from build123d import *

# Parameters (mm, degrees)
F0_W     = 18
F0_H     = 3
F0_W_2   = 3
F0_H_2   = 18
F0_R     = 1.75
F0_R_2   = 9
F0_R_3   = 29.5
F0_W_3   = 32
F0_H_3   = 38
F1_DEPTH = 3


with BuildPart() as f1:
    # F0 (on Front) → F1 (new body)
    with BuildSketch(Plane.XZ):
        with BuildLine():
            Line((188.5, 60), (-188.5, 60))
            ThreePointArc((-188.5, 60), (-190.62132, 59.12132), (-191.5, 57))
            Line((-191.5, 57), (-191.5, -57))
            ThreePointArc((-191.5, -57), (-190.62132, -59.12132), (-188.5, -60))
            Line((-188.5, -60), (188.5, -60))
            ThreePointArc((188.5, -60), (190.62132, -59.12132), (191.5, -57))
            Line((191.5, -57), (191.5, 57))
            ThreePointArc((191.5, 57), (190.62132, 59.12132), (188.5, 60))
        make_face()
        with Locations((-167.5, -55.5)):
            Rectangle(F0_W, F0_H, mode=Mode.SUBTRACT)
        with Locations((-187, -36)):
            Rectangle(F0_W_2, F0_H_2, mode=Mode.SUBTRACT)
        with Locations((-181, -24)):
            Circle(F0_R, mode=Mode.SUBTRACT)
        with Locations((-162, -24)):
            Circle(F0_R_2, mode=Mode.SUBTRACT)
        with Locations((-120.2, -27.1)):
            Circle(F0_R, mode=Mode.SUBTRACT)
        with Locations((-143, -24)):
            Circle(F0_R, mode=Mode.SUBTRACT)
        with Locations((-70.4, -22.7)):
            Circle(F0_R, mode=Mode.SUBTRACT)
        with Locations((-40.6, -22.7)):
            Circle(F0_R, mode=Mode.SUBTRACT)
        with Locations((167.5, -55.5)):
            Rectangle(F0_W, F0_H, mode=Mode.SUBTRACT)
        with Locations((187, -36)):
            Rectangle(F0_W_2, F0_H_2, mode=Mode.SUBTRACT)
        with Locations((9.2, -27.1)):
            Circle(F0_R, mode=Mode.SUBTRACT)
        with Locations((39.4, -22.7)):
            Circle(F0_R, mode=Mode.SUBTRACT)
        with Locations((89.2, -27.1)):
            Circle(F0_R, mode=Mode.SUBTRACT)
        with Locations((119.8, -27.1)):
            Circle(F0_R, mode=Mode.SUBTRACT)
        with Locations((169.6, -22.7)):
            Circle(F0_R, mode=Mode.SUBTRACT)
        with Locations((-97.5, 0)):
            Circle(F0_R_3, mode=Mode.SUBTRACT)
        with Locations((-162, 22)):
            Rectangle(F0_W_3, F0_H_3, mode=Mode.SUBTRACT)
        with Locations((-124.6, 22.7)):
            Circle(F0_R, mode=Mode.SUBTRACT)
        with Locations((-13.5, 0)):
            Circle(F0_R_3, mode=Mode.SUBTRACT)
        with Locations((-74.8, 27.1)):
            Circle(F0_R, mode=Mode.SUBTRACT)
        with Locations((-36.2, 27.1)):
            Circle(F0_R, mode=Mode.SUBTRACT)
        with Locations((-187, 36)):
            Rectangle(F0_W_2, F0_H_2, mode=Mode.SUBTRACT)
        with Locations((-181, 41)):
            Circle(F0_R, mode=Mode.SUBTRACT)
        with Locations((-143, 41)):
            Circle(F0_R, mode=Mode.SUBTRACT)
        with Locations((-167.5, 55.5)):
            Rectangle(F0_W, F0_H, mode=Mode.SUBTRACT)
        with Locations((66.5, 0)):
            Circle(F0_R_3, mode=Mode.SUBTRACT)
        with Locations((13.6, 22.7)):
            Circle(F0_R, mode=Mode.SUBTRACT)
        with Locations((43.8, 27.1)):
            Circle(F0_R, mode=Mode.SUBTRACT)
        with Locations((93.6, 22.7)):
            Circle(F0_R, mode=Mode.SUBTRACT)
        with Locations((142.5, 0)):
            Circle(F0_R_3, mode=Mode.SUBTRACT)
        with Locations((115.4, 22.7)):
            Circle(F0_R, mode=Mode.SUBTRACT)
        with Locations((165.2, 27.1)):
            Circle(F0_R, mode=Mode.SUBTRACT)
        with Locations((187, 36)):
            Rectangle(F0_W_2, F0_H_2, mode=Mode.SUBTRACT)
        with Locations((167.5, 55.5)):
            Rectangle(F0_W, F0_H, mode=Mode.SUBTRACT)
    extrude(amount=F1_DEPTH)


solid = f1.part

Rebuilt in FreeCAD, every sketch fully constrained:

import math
import FreeCAD as App
import Part
import Sketcher
Q = App.Units.Quantity


def add_polygon(sketch, points):
    """Adds a closed chain of lines whose ends are joined by coincident constraints."""
    first, n = sketch.GeometryCount, len(points)
    for a, b in zip(points, points[1:] + points[:1]):
        sketch.addGeometry(Part.LineSegment(App.Vector(*a, 0), App.Vector(*b, 0)), False)
    for i in range(n):
        sketch.addConstraint(Sketcher.Constraint("Coincident", first + i, 2, first + (i + 1) % n, 1))

doc = App.newDocument("Part")
body = doc.addObject("PartDesign::Body", "Body")

# Sketch on XZ plane
sketch1 = doc.addObject("Sketcher::SketchObject", "Sketch")
body.addObject(sketch1)
sketch1.AttachmentSupport = (doc.XZ_Plane, [""])
sketch1.MapMode = "FlatFace"
sketch1.addGeometry(Part.LineSegment(App.Vector(188.5, 60, 0), App.Vector(-188.5, 60, 0)), False)  # 0
sketch1.addGeometry(Part.ArcOfCircle(Part.Circle(App.Vector(-188.5, 57, 0), App.Vector(0, 0, 1), 3), math.radians(90), math.radians(180)), False)  # 1
sketch1.addGeometry(Part.LineSegment(App.Vector(-191.5, 57, 0), App.Vector(-191.5, -57, 0)), False)  # 2
sketch1.addGeometry(Part.ArcOfCircle(Part.Circle(App.Vector(-188.5, -57, 0), App.Vector(0, 0, 1), 3), math.radians(-180), math.radians(-90)), False)  # 3
sketch1.addGeometry(Part.LineSegment(App.Vector(-188.5, -60, 0), App.Vector(188.5, -60, 0)), False)  # 4
sketch1.addGeometry(Part.ArcOfCircle(Part.Circle(App.Vector(188.5, -57, 0), App.Vector(0, 0, 1), 3), math.radians(-90), math.radians(0)), False)  # 5
sketch1.addGeometry(Part.LineSegment(App.Vector(191.5, -57, 0), App.Vector(191.5, 57, 0)), False)  # 6
sketch1.addGeometry(Part.ArcOfCircle(Part.Circle(App.Vector(188.5, 57, 0), App.Vector(0, 0, 1), 3), math.radians(0), math.radians(90)), False)  # 7
add_polygon(sketch1, [(-158.5, -57), (-176.5, -57), (-176.5, -54), (-158.5, -54)])  # lines 8-11
add_polygon(sketch1, [(-185.5, -45), (-188.5, -45), (-188.5, -27), (-185.5, -27)])  # lines 12-15
sketch1.addGeometry(Part.Circle(App.Vector(-181, -24, 0), App.Vector(0, 0, 1), 1.8), False)  # 16
sketch1.addGeometry(Part.Circle(App.Vector(-162, -24, 0), App.Vector(0, 0, 1), 9), False)  # 17
sketch1.addGeometry(Part.Circle(App.Vector(-143, -24, 0), App.Vector(0, 0, 1), 1.8), False)  # 18
sketch1.addGeometry(Part.Circle(App.Vector(-120.2, -27.1, 0), App.Vector(0, 0, 1), 1.8), False)  # 19
sketch1.addGeometry(Part.Circle(App.Vector(-70.4, -22.7, 0), App.Vector(0, 0, 1), 1.8), False)  # 20
sketch1.addGeometry(Part.Circle(App.Vector(-40.6, -22.7, 0), App.Vector(0, 0, 1), 1.8), False)  # 21
add_polygon(sketch1, [(176.5, -57), (158.5, -57), (158.5, -54), (176.5, -54)])  # lines 22-25
add_polygon(sketch1, [(188.5, -45), (185.5, -45), (185.5, -27), (188.5, -27)])  # lines 26-29
sketch1.addGeometry(Part.Circle(App.Vector(9.2, -27.1, 0), App.Vector(0, 0, 1), 1.8), False)  # 30
sketch1.addGeometry(Part.Circle(App.Vector(39.4, -22.7, 0), App.Vector(0, 0, 1), 1.8), False)  # 31
sketch1.addGeometry(Part.Circle(App.Vector(89.2, -27.1, 0), App.Vector(0, 0, 1), 1.8), False)  # 32
sketch1.addGeometry(Part.Circle(App.Vector(119.8, -27.1, 0), App.Vector(0, 0, 1), 1.8), False)  # 33
sketch1.addGeometry(Part.Circle(App.Vector(169.6, -22.7, 0), App.Vector(0, 0, 1), 1.8), False)  # 34
sketch1.addGeometry(Part.Circle(App.Vector(-97.5, 0, 0), App.Vector(0, 0, 1), 29.5), False)  # 35
add_polygon(sketch1, [(-146, 3), (-178, 3), (-178, 41), (-146, 41)])  # lines 36-39
sketch1.addGeometry(Part.Circle(App.Vector(-124.6, 22.7, 0), App.Vector(0, 0, 1), 1.8), False)  # 40
sketch1.addGeometry(Part.Circle(App.Vector(-13.5, 0, 0), App.Vector(0, 0, 1), 29.5), False)  # 41
sketch1.addGeometry(Part.Circle(App.Vector(-74.8, 27.1, 0), App.Vector(0, 0, 1), 1.8), False)  # 42
sketch1.addGeometry(Part.Circle(App.Vector(-36.2, 27.1, 0), App.Vector(0, 0, 1), 1.8), False)  # 43
add_polygon(sketch1, [(-185.5, 27), (-188.5, 27), (-188.5, 45), (-185.5, 45)])  # lines 44-47
sketch1.addGeometry(Part.Circle(App.Vector(-181, 41, 0), App.Vector(0, 0, 1), 1.8), False)  # 48
sketch1.addGeometry(Part.Circle(App.Vector(-143, 41, 0), App.Vector(0, 0, 1), 1.8), False)  # 49
add_polygon(sketch1, [(-158.5, 54), (-176.5, 54), (-176.5, 57), (-158.5, 57)])  # lines 50-53
sketch1.addGeometry(Part.Circle(App.Vector(66.5, 0, 0), App.Vector(0, 0, 1), 29.5), False)  # 54
sketch1.addGeometry(Part.Circle(App.Vector(13.6, 22.7, 0), App.Vector(0, 0, 1), 1.8), False)  # 55
sketch1.addGeometry(Part.Circle(App.Vector(43.8, 27.1, 0), App.Vector(0, 0, 1), 1.8), False)  # 56
sketch1.addGeometry(Part.Circle(App.Vector(93.6, 22.7, 0), App.Vector(0, 0, 1), 1.8), False)  # 57
sketch1.addGeometry(Part.Circle(App.Vector(142.5, 0, 0), App.Vector(0, 0, 1), 29.5), False)  # 58
sketch1.addGeometry(Part.Circle(App.Vector(115.4, 22.7, 0), App.Vector(0, 0, 1), 1.8), False)  # 59
sketch1.addGeometry(Part.Circle(App.Vector(165.2, 27.1, 0), App.Vector(0, 0, 1), 1.8), False)  # 60
add_polygon(sketch1, [(188.5, 27), (185.5, 27), (185.5, 45), (188.5, 45)])  # lines 61-64
add_polygon(sketch1, [(176.5, 54), (158.5, 54), (158.5, 57), (176.5, 57)])  # lines 65-68
sketch1.addConstraint([
    Sketcher.Constraint("Tangent", 0, 2, 1, 1),
    Sketcher.Constraint("Tangent", 1, 2, 2, 1),
    Sketcher.Constraint("Tangent", 2, 2, 3, 1),
    Sketcher.Constraint("Tangent", 3, 2, 4, 1),
    Sketcher.Constraint("Tangent", 4, 2, 5, 1),
    Sketcher.Constraint("Tangent", 5, 2, 6, 1),
    Sketcher.Constraint("Tangent", 6, 2, 7, 1),
    Sketcher.Constraint("Tangent", 7, 2, 0, 1),
    Sketcher.Constraint("Horizontal", 0),
    Sketcher.Constraint("Vertical", 2),
    Sketcher.Constraint("Horizontal", 4),
    Sketcher.Constraint("Vertical", 6),
    Sketcher.Constraint("Horizontal", 8),
    Sketcher.Constraint("Vertical", 9),
    Sketcher.Constraint("Horizontal", 10),
    Sketcher.Constraint("Vertical", 11),
    Sketcher.Constraint("Horizontal", 12),
    Sketcher.Constraint("Vertical", 13),
    Sketcher.Constraint("Horizontal", 14),
    Sketcher.Constraint("Vertical", 15),
    Sketcher.Constraint("Horizontal", 22),
    Sketcher.Constraint("Vertical", 23),
    Sketcher.Constraint("Horizontal", 24),
    Sketcher.Constraint("Vertical", 25),
    Sketcher.Constraint("Horizontal", 26),
    Sketcher.Constraint("Vertical", 27),
    Sketcher.Constraint("Horizontal", 28),
    Sketcher.Constraint("Vertical", 29),
    Sketcher.Constraint("Horizontal", 36),
    Sketcher.Constraint("Vertical", 37),
    Sketcher.Constraint("Horizontal", 38),
    Sketcher.Constraint("Vertical", 39),
    Sketcher.Constraint("Horizontal", 44),
    Sketcher.Constraint("Vertical", 45),
    Sketcher.Constraint("Horizontal", 46),
    Sketcher.Constraint("Vertical", 47),
    Sketcher.Constraint("Horizontal", 50),
    Sketcher.Constraint("Vertical", 51),
    Sketcher.Constraint("Horizontal", 52),
    Sketcher.Constraint("Vertical", 53),
    Sketcher.Constraint("Horizontal", 61),
    Sketcher.Constraint("Vertical", 62),
    Sketcher.Constraint("Horizontal", 63),
    Sketcher.Constraint("Vertical", 64),
    Sketcher.Constraint("Horizontal", 65),
    Sketcher.Constraint("Vertical", 66),
    Sketcher.Constraint("Horizontal", 67),
    Sketcher.Constraint("Vertical", 68),
    Sketcher.Constraint("Equal", 1, 3),
    Sketcher.Constraint("Equal", 3, 5),
    Sketcher.Constraint("Equal", 5, 7),
    Sketcher.Constraint("Equal", 16, 18),
    Sketcher.Constraint("Equal", 18, 19),
    Sketcher.Constraint("Equal", 19, 20),
    Sketcher.Constraint("Equal", 20, 21),
    Sketcher.Constraint("Equal", 21, 30),
    Sketcher.Constraint("Equal", 30, 31),
    Sketcher.Constraint("Equal", 31, 32),
    Sketcher.Constraint("Equal", 32, 33),
    Sketcher.Constraint("Equal", 33, 34),
    Sketcher.Constraint("Equal", 34, 40),
    Sketcher.Constraint("Equal", 35, 41),
    Sketcher.Constraint("Equal", 40, 42),
    Sketcher.Constraint("Equal", 42, 43),
    Sketcher.Constraint("Equal", 43, 48),
    Sketcher.Constraint("Equal", 48, 49),
    Sketcher.Constraint("Equal", 41, 54),
    Sketcher.Constraint("Equal", 49, 55),
    Sketcher.Constraint("Equal", 55, 56),
    Sketcher.Constraint("Equal", 56, 57),
    Sketcher.Constraint("Equal", 54, 58),
    Sketcher.Constraint("Equal", 57, 59),
    Sketcher.Constraint("Equal", 59, 60),
    Sketcher.Constraint("Symmetric", 1, 3, 5, 3, -1, 1),
    Sketcher.Constraint("Symmetric", 28, 2, 44, 2, -1, 1),
    Sketcher.Constraint("Symmetric", 26, 2, 46, 2, -1, 1),
    Sketcher.Constraint("Symmetric", 24, 2, 50, 2, -1, 1),
    Sketcher.Constraint("Symmetric", 22, 2, 52, 2, -1, 1),
    Sketcher.Constraint("Symmetric", 14, 2, 61, 2, -1, 1),
    Sketcher.Constraint("Symmetric", 12, 2, 63, 2, -1, 1),
    Sketcher.Constraint("Symmetric", 10, 2, 65, 2, -1, 1),
    Sketcher.Constraint("Symmetric", 8, 2, 67, 2, -1, 1),
    Sketcher.Constraint("Symmetric", 11, 2, 22, 2, -2),
    Sketcher.Constraint("Symmetric", 9, 2, 24, 2, -2),
    Sketcher.Constraint("Symmetric", 15, 2, 26, 2, -2),
    Sketcher.Constraint("Symmetric", 13, 2, 28, 2, -2),
    Sketcher.Constraint("PointOnObject", 35, 3, -1),
    Sketcher.Constraint("PointOnObject", 41, 3, -1),
    Sketcher.Constraint("PointOnObject", 54, 3, -1),
    Sketcher.Constraint("PointOnObject", 58, 3, -1),
    Sketcher.Constraint("Horizontal", 16, 3, 17, 3),
    Sketcher.Constraint("Horizontal", 17, 3, 18, 3),
    Sketcher.Constraint("Horizontal", 20, 3, 21, 3),
    Sketcher.Constraint("Horizontal", 19, 3, 30, 3),
    Sketcher.Constraint("Horizontal", 21, 3, 31, 3),
    Sketcher.Constraint("Horizontal", 30, 3, 32, 3),
    Sketcher.Constraint("Horizontal", 32, 3, 33, 3),
    Sketcher.Constraint("Horizontal", 31, 3, 34, 3),
    Sketcher.Constraint("Horizontal", 42, 3, 43, 3),
    Sketcher.Constraint("Horizontal", 48, 3, 49, 3),
    Sketcher.Constraint("Horizontal", 40, 3, 55, 3),
    Sketcher.Constraint("Horizontal", 43, 3, 56, 3),
    Sketcher.Constraint("Horizontal", 55, 3, 57, 3),
    Sketcher.Constraint("Horizontal", 57, 3, 59, 3),
    Sketcher.Constraint("Horizontal", 56, 3, 60, 3),
    Sketcher.Constraint("Horizontal", 5, 2, 8, 2),
    Sketcher.Constraint("Horizontal", 49, 3, 37, 2),
    Sketcher.Constraint("Vertical", 16, 3, 48, 3),
    Sketcher.Constraint("Vertical", 18, 3, 49, 3),
    Sketcher.Constraint("Vertical", 3, 2, 12, 2),
    Sketcher.Constraint("Equal", 63, 9),
    Sketcher.Constraint("Equal", 67, 13),
    Sketcher.Constraint("Diameter", 17, Q("18 mm")),
    Sketcher.Constraint("Diameter", 35, Q("59 mm")),
    Sketcher.Constraint("Radius", 1, Q("3.000001 mm")),
    Sketcher.Constraint("Diameter", 16, Q("3.5 mm")),
    Sketcher.Constraint("DistanceX", 0, 2, 0, 1, Q("377 mm")),
    Sketcher.Constraint("DistanceX", 8, 2, 8, 1, Q("18 mm")),
    Sketcher.Constraint("DistanceX", 12, 2, 12, 1, Q("3 mm")),
    Sketcher.Constraint("DistanceX", 36, 2, 36, 1, Q("32 mm")),
    Sketcher.Constraint("DistanceY", 2, 2, 2, 1, Q("114 mm")),
    Sketcher.Constraint("DistanceY", 37, 1, 37, 2, Q("38 mm")),
    Sketcher.Constraint("DistanceX", 16, 3, -1, 1, Q("181 mm")),
    Sketcher.Constraint("DistanceY", 16, 3, -1, 1, Q("24 mm")),
    Sketcher.Constraint("DistanceX", 17, 3, -1, 1, Q("162 mm")),
    Sketcher.Constraint("DistanceX", 18, 3, -1, 1, Q("143 mm")),
    Sketcher.Constraint("DistanceY", -1, 1, 48, 3, Q("41 mm")),
    Sketcher.Constraint("DistanceY", 12, 2, -1, 1, Q("45 mm")),
    Sketcher.Constraint("DistanceX", 36, 2, -1, 1, Q("178 mm")),
    Sketcher.Constraint("DistanceX", 19, 3, -1, 1, Q("120.2 mm")),
    Sketcher.Constraint("DistanceY", 19, 3, -1, 1, Q("27.1 mm")),
    Sketcher.Constraint("DistanceX", 20, 3, -1, 1, Q("70.4 mm")),
    Sketcher.Constraint("DistanceY", 20, 3, -1, 1, Q("22.7 mm")),
    Sketcher.Constraint("DistanceX", 21, 3, -1, 1, Q("40.6 mm")),
    Sketcher.Constraint("DistanceX", -1, 1, 30, 3, Q("9.2 mm")),
    Sketcher.Constraint("DistanceX", -1, 1, 31, 3, Q("39.4 mm")),
    Sketcher.Constraint("DistanceX", -1, 1, 32, 3, Q("89.2 mm")),
    Sketcher.Constraint("DistanceX", -1, 1, 33, 3, Q("119.8 mm")),
    Sketcher.Constraint("DistanceX", -1, 1, 34, 3, Q("169.6 mm")),
    Sketcher.Constraint("DistanceX", 35, 3, -1, 1, Q("97.5 mm")),
    Sketcher.Constraint("DistanceX", 40, 3, -1, 1, Q("124.6 mm")),
    Sketcher.Constraint("DistanceY", -1, 1, 40, 3, Q("22.7 mm")),
    Sketcher.Constraint("DistanceX", 41, 3, -1, 1, Q("13.5 mm")),
    Sketcher.Constraint("DistanceX", 42, 3, -1, 1, Q("74.8 mm")),
    Sketcher.Constraint("DistanceY", -1, 1, 42, 3, Q("27.1 mm")),
    Sketcher.Constraint("DistanceX", 43, 3, -1, 1, Q("36.2 mm")),
    Sketcher.Constraint("DistanceX", -1, 1, 54, 3, Q("66.5 mm")),
    Sketcher.Constraint("DistanceX", -1, 1, 55, 3, Q("13.6 mm")),
    Sketcher.Constraint("DistanceX", -1, 1, 56, 3, Q("43.8 mm")),
    Sketcher.Constraint("DistanceX", -1, 1, 57, 3, Q("93.6 mm")),
    Sketcher.Constraint("DistanceX", -1, 1, 58, 3, Q("142.5 mm")),
    Sketcher.Constraint("DistanceX", -1, 1, 59, 3, Q("115.4 mm")),
    Sketcher.Constraint("DistanceX", -1, 1, 60, 3, Q("165.2 mm")),
    Sketcher.Constraint("DistanceX", 8, 2, -1, 1, Q("176.5 mm")),
])
pad1 = doc.addObject("PartDesign::Pad", "Pad")
body.addObject(pad1)
pad1.Profile = sketch1
pad1.Length = 3

doc.recompute()
